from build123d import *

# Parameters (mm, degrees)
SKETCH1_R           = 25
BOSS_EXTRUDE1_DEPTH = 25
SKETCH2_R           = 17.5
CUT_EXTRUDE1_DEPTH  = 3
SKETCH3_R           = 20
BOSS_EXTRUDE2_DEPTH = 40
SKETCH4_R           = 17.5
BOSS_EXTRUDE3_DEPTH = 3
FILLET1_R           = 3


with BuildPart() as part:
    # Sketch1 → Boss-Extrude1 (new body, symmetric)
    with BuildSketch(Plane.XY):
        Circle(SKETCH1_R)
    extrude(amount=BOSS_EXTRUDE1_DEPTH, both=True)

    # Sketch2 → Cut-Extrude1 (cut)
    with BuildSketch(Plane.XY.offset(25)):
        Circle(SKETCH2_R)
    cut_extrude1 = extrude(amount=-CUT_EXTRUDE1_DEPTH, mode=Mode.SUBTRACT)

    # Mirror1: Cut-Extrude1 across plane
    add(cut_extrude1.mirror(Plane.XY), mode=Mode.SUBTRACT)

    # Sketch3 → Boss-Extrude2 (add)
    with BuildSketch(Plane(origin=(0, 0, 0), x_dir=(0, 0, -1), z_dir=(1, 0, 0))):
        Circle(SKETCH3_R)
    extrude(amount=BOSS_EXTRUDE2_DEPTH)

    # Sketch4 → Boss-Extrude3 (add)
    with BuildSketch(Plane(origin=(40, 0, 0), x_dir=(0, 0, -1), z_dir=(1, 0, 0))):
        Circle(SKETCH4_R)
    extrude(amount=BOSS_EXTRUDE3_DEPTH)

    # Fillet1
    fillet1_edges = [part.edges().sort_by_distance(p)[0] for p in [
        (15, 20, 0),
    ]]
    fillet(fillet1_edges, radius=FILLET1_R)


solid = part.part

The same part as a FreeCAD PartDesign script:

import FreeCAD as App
import Part
import Sketcher


def edges_at(feature, points):
    """Names of the edges that pass closest to the given points."""
    edges = feature.Shape.Edges
    near = lambda p: min(range(len(edges)), key=lambda i: edges[i].distToShape(Part.Vertex(*p))[0])
    return sorted({f"Edge{near(p) + 1}" for p in points})

doc = App.newDocument("Part")
body = doc.addObject("PartDesign::Body", "Body")

sketch1 = body.newObject("Sketcher::SketchObject", "Sketch")
sketch1.AttachmentSupport = (doc.getObject("XY_Plane"), [""])
sketch1.MapMode = "FlatFace"
sketch1.addGeometry(Part.Circle(App.Vector(0, 0, 0), App.Vector(0, 0, 1), 25), False)
sketch1.addConstraint([
    Sketcher.Constraint("Coincident", 0, 3, -1, 1),
    Sketcher.Constraint("Diameter", 0, 50.0),
])
pad1 = body.newObject("PartDesign::Pad", "Pad")
pad1.Profile = sketch1
pad1.Length = 50
pad1.Midplane = True

sketch2 = body.newObject("Sketcher::SketchObject", "Sketch001")
sketch2.AttachmentSupport = (doc.getObject("XY_Plane"), [""])
sketch2.MapMode = "FlatFace"
sketch2.AttachmentOffset = App.Placement(App.Vector(0, 0, 25), App.Rotation())
sketch2.addGeometry(Part.Circle(App.Vector(0, 0, 0), App.Vector(0, 0, 1), 18), False)
sketch2.addConstraint([
    Sketcher.Constraint("Coincident", 0, 3, -1, 1),
    Sketcher.Constraint("Diameter", 0, 35.0),
])
pocket1 = body.newObject("PartDesign::Pocket", "Pocket")
pocket1.Profile = sketch2
pocket1.Length = 3
doc.recompute()

mirrored = body.newObject("PartDesign::Mirrored", "Mirrored")
mirrored.Originals = [pocket1]
mirrored.MirrorPlane = (doc.getObject("XY_Plane"), [""])
body.Tip = mirrored

sketch3 = body.newObject("Sketcher::SketchObject", "Sketch002")
sketch3.AttachmentSupport = (doc.getObject("YZ_Plane"), [""])
sketch3.MapMode = "FlatFace"
sketch3.addGeometry(Part.Circle(App.Vector(0, 0, 0), App.Vector(0, 0, 1), 20), False)
sketch3.addConstraint([
    Sketcher.Constraint("Coincident", 0, 3, -1, 1),
    Sketcher.Constraint("Diameter", 0, 40.0),
])
pad2 = body.newObject("PartDesign::Pad", "Pad001")
pad2.Profile = sketch3
pad2.Length = 40

sketch4 = body.newObject("Sketcher::SketchObject", "Sketch003")
sketch4.AttachmentSupport = (doc.getObject("YZ_Plane"), [""])
sketch4.MapMode = "FlatFace"
sketch4.AttachmentOffset = App.Placement(App.Vector(0, 0, 40), App.Rotation())
sketch4.addGeometry(Part.Circle(App.Vector(0, 0, 0), App.Vector(0, 0, 1), 18), False)
sketch4.addConstraint([
    Sketcher.Constraint("Coincident", 0, 3, -1, 1),
    Sketcher.Constraint("Diameter", 0, 35.0),
])
pad3 = body.newObject("PartDesign::Pad", "Pad002")
pad3.Profile = sketch4
pad3.Length = 3
doc.recompute()

fillet = body.newObject("PartDesign::Fillet", "Fillet")
fillet.Base = (pad3, edges_at(pad3, [(15, 20, 0)]))
fillet.Radius = 3

doc.recompute()
